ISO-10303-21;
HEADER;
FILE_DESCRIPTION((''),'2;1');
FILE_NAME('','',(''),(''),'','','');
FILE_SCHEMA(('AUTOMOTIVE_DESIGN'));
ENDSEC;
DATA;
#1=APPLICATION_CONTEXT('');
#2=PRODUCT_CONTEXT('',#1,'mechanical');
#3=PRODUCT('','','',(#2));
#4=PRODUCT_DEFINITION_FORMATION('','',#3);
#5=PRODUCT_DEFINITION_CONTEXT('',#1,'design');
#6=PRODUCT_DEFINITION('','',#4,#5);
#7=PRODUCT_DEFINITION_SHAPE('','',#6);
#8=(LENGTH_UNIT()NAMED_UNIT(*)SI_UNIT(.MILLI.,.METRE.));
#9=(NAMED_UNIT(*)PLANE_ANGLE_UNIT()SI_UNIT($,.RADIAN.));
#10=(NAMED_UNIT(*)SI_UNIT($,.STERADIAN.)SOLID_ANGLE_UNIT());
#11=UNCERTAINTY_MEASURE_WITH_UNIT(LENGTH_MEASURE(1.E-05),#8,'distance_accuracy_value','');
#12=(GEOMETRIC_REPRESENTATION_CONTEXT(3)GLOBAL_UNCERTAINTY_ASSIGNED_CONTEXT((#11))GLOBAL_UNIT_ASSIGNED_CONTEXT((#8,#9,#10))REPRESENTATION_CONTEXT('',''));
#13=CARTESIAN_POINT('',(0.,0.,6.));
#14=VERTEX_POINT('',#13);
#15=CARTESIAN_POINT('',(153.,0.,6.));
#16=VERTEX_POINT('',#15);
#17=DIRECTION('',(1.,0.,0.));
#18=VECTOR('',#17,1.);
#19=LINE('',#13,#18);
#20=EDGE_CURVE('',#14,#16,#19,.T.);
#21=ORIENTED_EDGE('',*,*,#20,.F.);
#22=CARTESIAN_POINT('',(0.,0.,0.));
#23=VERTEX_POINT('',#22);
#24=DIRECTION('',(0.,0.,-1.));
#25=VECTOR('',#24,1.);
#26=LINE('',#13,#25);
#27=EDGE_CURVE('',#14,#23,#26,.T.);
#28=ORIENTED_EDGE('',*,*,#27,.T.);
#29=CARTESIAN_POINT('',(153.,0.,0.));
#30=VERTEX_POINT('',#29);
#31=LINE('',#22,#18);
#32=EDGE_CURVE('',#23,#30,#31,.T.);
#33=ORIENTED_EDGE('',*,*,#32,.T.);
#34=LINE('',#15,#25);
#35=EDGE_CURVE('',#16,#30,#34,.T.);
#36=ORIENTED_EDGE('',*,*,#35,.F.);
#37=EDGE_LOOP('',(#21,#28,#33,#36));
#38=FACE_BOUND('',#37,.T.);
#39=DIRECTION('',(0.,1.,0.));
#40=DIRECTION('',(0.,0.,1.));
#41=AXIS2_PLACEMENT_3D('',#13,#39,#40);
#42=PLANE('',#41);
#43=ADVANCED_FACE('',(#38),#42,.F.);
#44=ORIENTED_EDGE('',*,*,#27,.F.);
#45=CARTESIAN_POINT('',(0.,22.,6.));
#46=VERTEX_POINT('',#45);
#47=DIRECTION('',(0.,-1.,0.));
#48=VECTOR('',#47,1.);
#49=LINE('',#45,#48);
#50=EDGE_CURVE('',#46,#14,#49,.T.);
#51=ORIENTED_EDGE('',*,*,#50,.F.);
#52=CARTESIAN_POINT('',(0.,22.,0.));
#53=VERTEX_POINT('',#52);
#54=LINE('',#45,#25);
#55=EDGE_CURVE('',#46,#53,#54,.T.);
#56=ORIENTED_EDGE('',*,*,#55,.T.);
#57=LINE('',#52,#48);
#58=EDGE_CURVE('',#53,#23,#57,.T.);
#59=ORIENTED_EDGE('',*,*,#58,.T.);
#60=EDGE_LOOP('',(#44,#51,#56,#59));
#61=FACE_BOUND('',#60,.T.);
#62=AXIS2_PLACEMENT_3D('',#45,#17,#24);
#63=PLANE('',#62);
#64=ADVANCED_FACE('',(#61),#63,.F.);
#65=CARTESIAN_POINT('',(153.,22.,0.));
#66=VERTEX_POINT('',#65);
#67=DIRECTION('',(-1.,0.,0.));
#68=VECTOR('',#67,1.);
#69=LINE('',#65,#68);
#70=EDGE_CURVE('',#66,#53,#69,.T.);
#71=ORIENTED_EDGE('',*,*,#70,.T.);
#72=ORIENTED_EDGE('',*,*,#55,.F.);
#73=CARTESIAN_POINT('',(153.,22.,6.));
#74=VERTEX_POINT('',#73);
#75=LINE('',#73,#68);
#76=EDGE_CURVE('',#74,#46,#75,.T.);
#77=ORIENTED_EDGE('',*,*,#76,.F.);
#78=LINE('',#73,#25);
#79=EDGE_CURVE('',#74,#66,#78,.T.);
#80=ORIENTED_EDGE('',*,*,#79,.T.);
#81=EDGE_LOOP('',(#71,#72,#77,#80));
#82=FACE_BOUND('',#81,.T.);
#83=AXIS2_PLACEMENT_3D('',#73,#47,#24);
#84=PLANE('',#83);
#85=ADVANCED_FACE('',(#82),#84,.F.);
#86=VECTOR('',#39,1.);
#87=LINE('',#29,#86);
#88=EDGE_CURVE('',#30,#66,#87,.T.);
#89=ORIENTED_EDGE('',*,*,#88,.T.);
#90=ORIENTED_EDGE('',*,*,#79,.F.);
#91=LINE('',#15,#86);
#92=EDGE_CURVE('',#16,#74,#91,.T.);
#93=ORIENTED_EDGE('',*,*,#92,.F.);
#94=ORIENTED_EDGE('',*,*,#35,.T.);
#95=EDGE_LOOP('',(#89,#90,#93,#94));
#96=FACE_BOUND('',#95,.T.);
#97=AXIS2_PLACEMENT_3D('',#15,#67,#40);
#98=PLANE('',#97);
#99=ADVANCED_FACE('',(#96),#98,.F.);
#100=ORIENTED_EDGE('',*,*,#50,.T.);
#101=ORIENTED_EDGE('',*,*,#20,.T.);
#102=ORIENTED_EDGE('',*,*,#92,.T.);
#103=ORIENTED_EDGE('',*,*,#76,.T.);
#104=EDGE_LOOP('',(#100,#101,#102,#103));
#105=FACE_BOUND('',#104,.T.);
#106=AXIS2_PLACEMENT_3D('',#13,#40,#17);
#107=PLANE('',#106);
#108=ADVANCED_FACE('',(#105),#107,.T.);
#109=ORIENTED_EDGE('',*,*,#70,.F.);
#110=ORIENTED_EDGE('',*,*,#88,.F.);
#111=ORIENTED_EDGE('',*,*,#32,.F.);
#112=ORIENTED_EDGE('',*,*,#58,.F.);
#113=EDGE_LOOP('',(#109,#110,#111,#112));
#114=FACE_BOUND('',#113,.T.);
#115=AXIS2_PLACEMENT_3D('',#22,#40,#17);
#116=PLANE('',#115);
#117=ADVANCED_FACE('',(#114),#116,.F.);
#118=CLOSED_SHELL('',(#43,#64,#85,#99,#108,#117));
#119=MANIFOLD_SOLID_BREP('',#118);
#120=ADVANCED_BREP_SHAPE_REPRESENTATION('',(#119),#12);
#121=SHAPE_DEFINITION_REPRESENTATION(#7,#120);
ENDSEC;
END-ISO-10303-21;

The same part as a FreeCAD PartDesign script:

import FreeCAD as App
import Part
import Sketcher

V = App.Vector
Q = App.Units.Quantity


def add_polygon(sketch, points):
    """Adds a closed chain of lines whose ends are joined by coincident constraints."""
    first, n = sketch.GeometryCount, len(points)
    for a, b in zip(points, points[1:] + points[:1]):
        sketch.addGeometry(Part.LineSegment(App.Vector(*a, 0), App.Vector(*b, 0)), False)
    for i in range(n):
        sketch.addConstraint(Sketcher.Constraint("Coincident", first + i, 2, first + (i + 1) % n, 1))

doc = App.newDocument("Part")
body = doc.addObject("PartDesign::Body", "Body")

sketch1 = body.newObject("Sketcher::SketchObject", "Sketch")
sketch1.AttachmentSupport = (doc.getObject("XY_Plane"), [""])
sketch1.MapMode = "FlatFace"
add_polygon(sketch1, [(0, 22), (0, 0), (153, 0), (153, 22)])
sketch1.addConstraint([
    Sketcher.Constraint("Vertical", 0),
    Sketcher.Constraint("Horizontal", 1),
    Sketcher.Constraint("Vertical", 2),
    Sketcher.Constraint("Horizontal", 3),
    Sketcher.Constraint("Coincident", 0, 2, -1, 1),
    Sketcher.Constraint("DistanceX", 1, 1, 1, 2, Q("153 mm")),
    Sketcher.Constraint("DistanceY", 0, 2, 0, 1, Q("22 mm")),
])
pad1 = body.newObject("PartDesign::Pad", "Pad")
pad1.Profile = sketch1
pad1.Length = 6

doc.recompute()
